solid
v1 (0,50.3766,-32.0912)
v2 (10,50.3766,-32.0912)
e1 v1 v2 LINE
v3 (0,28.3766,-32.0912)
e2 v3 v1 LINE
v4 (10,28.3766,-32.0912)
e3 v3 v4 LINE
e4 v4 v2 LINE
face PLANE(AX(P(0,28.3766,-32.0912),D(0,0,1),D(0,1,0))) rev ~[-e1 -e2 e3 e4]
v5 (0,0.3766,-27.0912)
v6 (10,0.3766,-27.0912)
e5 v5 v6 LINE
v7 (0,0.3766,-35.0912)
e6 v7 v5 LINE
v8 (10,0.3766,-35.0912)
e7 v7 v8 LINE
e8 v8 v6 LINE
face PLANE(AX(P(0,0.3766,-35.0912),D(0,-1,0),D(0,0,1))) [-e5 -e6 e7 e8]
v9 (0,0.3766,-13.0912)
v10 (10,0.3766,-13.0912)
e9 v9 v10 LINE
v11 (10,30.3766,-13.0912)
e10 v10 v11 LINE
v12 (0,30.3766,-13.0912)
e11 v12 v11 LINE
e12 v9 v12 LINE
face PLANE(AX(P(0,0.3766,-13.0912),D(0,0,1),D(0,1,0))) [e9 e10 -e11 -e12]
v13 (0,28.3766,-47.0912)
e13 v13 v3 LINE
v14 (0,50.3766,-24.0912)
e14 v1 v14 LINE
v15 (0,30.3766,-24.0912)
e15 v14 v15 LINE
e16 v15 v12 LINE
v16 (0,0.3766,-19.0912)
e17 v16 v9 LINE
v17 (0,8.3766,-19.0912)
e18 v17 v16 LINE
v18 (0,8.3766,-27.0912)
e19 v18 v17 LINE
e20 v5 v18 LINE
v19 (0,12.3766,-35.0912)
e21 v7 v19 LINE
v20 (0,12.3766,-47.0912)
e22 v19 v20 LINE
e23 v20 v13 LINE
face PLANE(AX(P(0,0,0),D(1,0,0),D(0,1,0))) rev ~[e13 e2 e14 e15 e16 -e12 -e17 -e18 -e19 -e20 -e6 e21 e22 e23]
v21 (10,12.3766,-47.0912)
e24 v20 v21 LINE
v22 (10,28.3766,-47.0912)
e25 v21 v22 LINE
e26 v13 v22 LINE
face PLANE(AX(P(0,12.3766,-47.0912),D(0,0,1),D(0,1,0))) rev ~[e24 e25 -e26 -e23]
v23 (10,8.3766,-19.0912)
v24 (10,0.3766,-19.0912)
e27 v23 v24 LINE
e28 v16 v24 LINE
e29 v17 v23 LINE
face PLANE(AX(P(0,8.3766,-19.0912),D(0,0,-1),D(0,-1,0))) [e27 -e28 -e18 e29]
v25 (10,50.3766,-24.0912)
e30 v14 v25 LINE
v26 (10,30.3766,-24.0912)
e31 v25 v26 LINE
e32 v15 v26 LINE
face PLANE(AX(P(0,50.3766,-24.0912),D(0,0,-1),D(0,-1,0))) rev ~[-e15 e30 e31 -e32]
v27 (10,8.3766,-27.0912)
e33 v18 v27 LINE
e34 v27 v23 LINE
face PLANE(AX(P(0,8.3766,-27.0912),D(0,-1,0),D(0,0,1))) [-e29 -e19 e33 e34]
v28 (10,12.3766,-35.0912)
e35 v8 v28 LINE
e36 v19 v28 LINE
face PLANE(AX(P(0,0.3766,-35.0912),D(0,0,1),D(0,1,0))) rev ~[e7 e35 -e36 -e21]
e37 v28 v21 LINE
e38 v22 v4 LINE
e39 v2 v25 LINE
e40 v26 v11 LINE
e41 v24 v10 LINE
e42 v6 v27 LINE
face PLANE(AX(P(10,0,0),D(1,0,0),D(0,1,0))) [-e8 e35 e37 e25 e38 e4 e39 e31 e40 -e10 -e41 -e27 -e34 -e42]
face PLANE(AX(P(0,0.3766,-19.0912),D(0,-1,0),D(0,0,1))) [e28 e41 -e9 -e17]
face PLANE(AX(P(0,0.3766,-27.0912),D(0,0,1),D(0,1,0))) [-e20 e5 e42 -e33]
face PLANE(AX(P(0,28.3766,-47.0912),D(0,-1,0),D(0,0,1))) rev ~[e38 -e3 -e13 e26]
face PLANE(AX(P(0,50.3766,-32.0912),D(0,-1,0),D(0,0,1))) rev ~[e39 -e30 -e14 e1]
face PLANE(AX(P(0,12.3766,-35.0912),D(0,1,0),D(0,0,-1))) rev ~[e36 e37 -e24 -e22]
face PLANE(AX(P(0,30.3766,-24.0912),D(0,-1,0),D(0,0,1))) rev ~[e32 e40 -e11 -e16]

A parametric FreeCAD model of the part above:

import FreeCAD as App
import Part
import Sketcher

V = App.Vector

doc = App.newDocument("Part")
params = doc.addObject("Spreadsheet::Sheet", "Params")
for row, (alias, value) in enumerate([
    ("sketch1_width", "12 mm"),
    ("sketch1_width2", "16 mm"),
    ("sketch1_width3", "22 mm"),
    ("sketch1_width4", "20 mm"),
    ("sketch1_width5", "8 mm"),
    ("pad1_length", "10 mm"),
], start=1):
    params.set(f"A{row}", alias)
    params.set(f"B{row}", "=" + value)
    params.setAlias(f"B{row}", alias)

body = doc.addObject("PartDesign::Body", "Body")

sketch1 = doc.addObject("Sketcher::SketchObject", "Sketch")
body.addObject(sketch1)
sketch1.AttachmentSupport = (doc.YZ_Plane, [""])
sketch1.MapMode = "FlatFace"
sketch1.addGeometry([
    Part.LineSegment(V(0, -27, 0), V(0, -35, 0)),
    Part.LineSegment(V(0, -35, 0), V(12, -35, 0)),
    Part.LineSegment(V(12, -35, 0), V(12, -47, 0)),
    Part.LineSegment(V(12, -47, 0), V(28, -47, 0)),
    Part.LineSegment(V(28, -47, 0), V(28, -32, 0)),
    Part.LineSegment(V(28, -32, 0), V(50, -32, 0)),
    Part.LineSegment(V(50, -32, 0), V(50, -24, 0)),
    Part.LineSegment(V(50, -24, 0), V(30, -24, 0)),
    Part.LineSegment(V(30, -24, 0), V(30, -13, 0)),
    Part.LineSegment(V(30, -13, 0), V(0, -13, 0)),
    Part.LineSegment(V(0, -13, 0), V(0, -19, 0)),
    Part.LineSegment(V(0, -19, 0), V(8, -19, 0)),
    Part.LineSegment(V(8, -19, 0), V(8, -27, 0)),
    Part.LineSegment(V(8, -27, 0), V(0, -27, 0)),
], False)
sketch1.addConstraint([
    Sketcher.Constraint("Coincident", 0, 2, 1, 1),
    Sketcher.Constraint("Coincident", 1, 2, 2, 1),
    Sketcher.Constraint("Coincident", 2, 2, 3, 1),
    Sketcher.Constraint("Coincident", 3, 2, 4, 1),
    Sketcher.Constraint("Coincident", 4, 2, 5, 1),
    Sketcher.Constraint("Coincident", 5, 2, 6, 1),
    Sketcher.Constraint("Coincident", 6, 2, 7, 1),
    Sketcher.Constraint("Coincident", 7, 2, 8, 1),
    Sketcher.Constraint("Coincident", 8, 2, 9, 1),
    Sketcher.Constraint("Coincident", 9, 2, 10, 1),
    Sketcher.Constraint("Coincident", 10, 2, 11, 1),
    Sketcher.Constraint("Coincident", 11, 2, 12, 1),
    Sketcher.Constraint("Coincident", 12, 2, 13, 1),
    Sketcher.Constraint("Coincident", 13, 2, 0, 1),
    Sketcher.Constraint("Vertical", 0),
    Sketcher.Constraint("Horizontal", 1),
    Sketcher.Constraint("Vertical", 2),
    Sketcher.Constraint("Horizontal", 3),
    Sketcher.Constraint("Vertical", 4),
    Sketcher.Constraint("Horizontal", 5),
    Sketcher.Constraint("Vertical", 6),
    Sketcher.Constraint("Horizontal", 7),
    Sketcher.Constraint("Vertical", 8),
    Sketcher.Constraint("Horizontal", 9),
    Sketcher.Constraint("Vertical", 10),
    Sketcher.Constraint("Horizontal", 11),
    Sketcher.Constraint("Vertical", 12),
    Sketcher.Constraint("Horizontal", 13),
    Sketcher.Constraint("Vertical", 0, 2, 9, 2),
    Sketcher.Constraint("Equal", 13, 0),
    Sketcher.Constraint("Equal", 1, 2),
    Sketcher.Constraint("Equal", 0, 6),
    Sketcher.Constraint("Equal", 6, 12),
    Sketcher.Constraint("DistanceX", 1, 1, 1, 2, 12.0),
    Sketcher.Constraint("DistanceX", 3, 1, 3, 2, 16.0),
    Sketcher.Constraint("DistanceX", 5, 1, 5, 2, 22.0),
    Sketcher.Constraint("DistanceX", 7, 2, 7, 1, 20.0),
    Sketcher.Constraint("DistanceX", 11, 1, 11, 2, 8.0),
    Sketcher.Constraint("DistanceY", 4, 1, 4, 2, 15.0),
    Sketcher.Constraint("DistanceY", 8, 1, 8, 2, 11.0),
    Sketcher.Constraint("DistanceX", -1, 1, 0, 2, 0.3766),
    Sketcher.Constraint("DistanceY", 0, 2, -1, 1, 35.0912),
])
sketch1.setExpression("Constraints[33]", "Params.sketch1_width")
sketch1.setExpression("Constraints[34]", "Params.sketch1_width2")
sketch1.setExpression("Constraints[35]", "Params.sketch1_width3")
sketch1.setExpression("Constraints[36]", "Params.sketch1_width4")
sketch1.setExpression("Constraints[37]", "Params.sketch1_width5")
pad1 = doc.addObject("PartDesign::Pad", "Pad")
body.addObject(pad1)
pad1.Profile = sketch1
pad1.setExpression("Length", "Params.pad1_length")

doc.recompute()
